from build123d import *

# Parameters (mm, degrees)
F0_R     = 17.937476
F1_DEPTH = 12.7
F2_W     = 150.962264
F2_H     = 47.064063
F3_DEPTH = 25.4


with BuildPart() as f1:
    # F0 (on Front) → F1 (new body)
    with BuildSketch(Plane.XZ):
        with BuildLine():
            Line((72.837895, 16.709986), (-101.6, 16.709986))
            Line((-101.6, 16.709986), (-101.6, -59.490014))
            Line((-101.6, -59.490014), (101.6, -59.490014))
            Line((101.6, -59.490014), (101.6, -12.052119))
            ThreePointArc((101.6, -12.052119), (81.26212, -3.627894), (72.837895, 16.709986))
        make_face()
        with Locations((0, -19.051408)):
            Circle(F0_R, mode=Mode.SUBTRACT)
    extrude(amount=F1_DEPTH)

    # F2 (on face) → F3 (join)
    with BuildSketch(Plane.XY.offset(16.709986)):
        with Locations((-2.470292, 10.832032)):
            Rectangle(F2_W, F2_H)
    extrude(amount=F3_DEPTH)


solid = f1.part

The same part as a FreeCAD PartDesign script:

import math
import FreeCAD as App
import Part
import Sketcher
Q = App.Units.Quantity

doc = App.newDocument("Part")
body = doc.addObject("PartDesign::Body", "Body")

# Sketch on XZ plane
sketch1 = body.newObject("Sketcher::SketchObject", "Sketch")
sketch1.AttachmentSupport = (doc.getObject("XZ_Plane"), [""])
sketch1.MapMode = "FlatFace"
sketch1.addGeometry([
    Part.LineSegment(App.Vector(72.837895, 16.709986, 0), App.Vector(-101.6, 16.709986, 0)),  # 0
    Part.LineSegment(App.Vector(-101.6, 16.709986, 0), App.Vector(-101.6, -59.490014, 0)),  # 1
    Part.LineSegment(App.Vector(-101.6, -59.490014, 0), App.Vector(101.6, -59.490014, 0)),  # 2
    Part.LineSegment(App.Vector(101.6, -59.490014, 0), App.Vector(101.6, -12.052119, 0)),  # 3
    Part.ArcOfCircle(Part.Circle(App.Vector(101.599998, 16.709984, 0), App.Vector(0, 0, 1), 28.762103), math.radians(179.999997), math.radians(270.000003)),  # 4
    Part.Circle(App.Vector(0, -19.051408, 0), App.Vector(0, 0, 1), 17.937476),  # 5
], False)
sketch1.addConstraint([
    Sketcher.Constraint("Coincident", 0, 2, 1, 1),
    Sketcher.Constraint("Coincident", 1, 2, 2, 1),
    Sketcher.Constraint("Coincident", 2, 2, 3, 1),
    Sketcher.Constraint("Coincident", 3, 2, 4, 2),
    Sketcher.Constraint("Coincident", 4, 1, 0, 1),
    Sketcher.Constraint("Horizontal", 0),
    Sketcher.Constraint("Vertical", 1),
    Sketcher.Constraint("Horizontal", 2),
    Sketcher.Constraint("Vertical", 3),
    Sketcher.Constraint("PointOnObject", 5, 3, -2),
    Sketcher.Constraint("Horizontal", 4, 3, 0, 2),
    Sketcher.Constraint("Vertical", 4, 3, 2, 2),
    Sketcher.Constraint("DistanceX", 2, 1, 2, 2, Q("8 in")),
    Sketcher.Constraint("DistanceY", 1, 2, 1, 1, Q("3 in")),
    Sketcher.Constraint("DistanceX", -1, 1, 4, 3, Q("3.9999999 in")),
    Sketcher.Constraint("Diameter", 5, Q("35.874952 mm")),
    Sketcher.Constraint("Radius", 4, Q("28.762103 mm")),
    Sketcher.Constraint("DistanceY", 3, 2, -1, 1, Q("12.052119 mm")),
    Sketcher.Constraint("DistanceY", 5, 3, 3, 2, Q("6.999289 mm")),
])
pad1 = body.newObject("PartDesign::Pad", "Pad")
pad1.Profile = sketch1
pad1.Length = Q("0.5 in")

# Sketch on XY plane
sketch2 = body.newObject("Sketcher::SketchObject", "Sketch001")
sketch2.AttachmentSupport = (doc.getObject("XY_Plane"), [""])
sketch2.MapMode = "FlatFace"
sketch2.AttachmentOffset = App.Placement(App.Vector(0, 0, 16.709986), App.Rotation())
sketch2.addGeometry([
    Part.LineSegment(App.Vector(-77.951424, 34.364064, 0), App.Vector(-77.951424, -12.7, 0)),
    Part.LineSegment(App.Vector(-77.951424, -12.7, 0), App.Vector(73.01084, -12.7, 0)),
    Part.LineSegment(App.Vector(73.01084, -12.7, 0), App.Vector(73.01084, 34.364064, 0)),
    Part.LineSegment(App.Vector(73.01084, 34.364064, 0), App.Vector(-77.951424, 34.364064, 0)),
], False)
sketch2.addConstraint([
    Sketcher.Constraint("Coincident", 0, 2, 1, 1),
    Sketcher.Constraint("Coincident", 1, 2, 2, 1),
    Sketcher.Constraint("Coincident", 2, 2, 3, 1),
    Sketcher.Constraint("Coincident", 3, 2, 0, 1),
    Sketcher.Constraint("Vertical", 0),
    Sketcher.Constraint("Horizontal", 1),
    Sketcher.Constraint("Vertical", 2),
    Sketcher.Constraint("Horizontal", 3),
    Sketcher.Constraint("DistanceY", 0, 2, -1, 1, Q("0.5 in")),
    Sketcher.Constraint("DistanceX", 1, 1, 1, 2, Q("150.962264 mm")),
    Sketcher.Constraint("DistanceY", 0, 2, 0, 1, Q("47.064063 mm")),
    Sketcher.Constraint("DistanceX", -1, 1, 1, 2, Q("73.01084 mm")),
])
pad2 = body.newObject("PartDesign::Pad", "Pad001")
pad2.Profile = sketch2
pad2.Length = Q("1 in")

doc.recompute()
